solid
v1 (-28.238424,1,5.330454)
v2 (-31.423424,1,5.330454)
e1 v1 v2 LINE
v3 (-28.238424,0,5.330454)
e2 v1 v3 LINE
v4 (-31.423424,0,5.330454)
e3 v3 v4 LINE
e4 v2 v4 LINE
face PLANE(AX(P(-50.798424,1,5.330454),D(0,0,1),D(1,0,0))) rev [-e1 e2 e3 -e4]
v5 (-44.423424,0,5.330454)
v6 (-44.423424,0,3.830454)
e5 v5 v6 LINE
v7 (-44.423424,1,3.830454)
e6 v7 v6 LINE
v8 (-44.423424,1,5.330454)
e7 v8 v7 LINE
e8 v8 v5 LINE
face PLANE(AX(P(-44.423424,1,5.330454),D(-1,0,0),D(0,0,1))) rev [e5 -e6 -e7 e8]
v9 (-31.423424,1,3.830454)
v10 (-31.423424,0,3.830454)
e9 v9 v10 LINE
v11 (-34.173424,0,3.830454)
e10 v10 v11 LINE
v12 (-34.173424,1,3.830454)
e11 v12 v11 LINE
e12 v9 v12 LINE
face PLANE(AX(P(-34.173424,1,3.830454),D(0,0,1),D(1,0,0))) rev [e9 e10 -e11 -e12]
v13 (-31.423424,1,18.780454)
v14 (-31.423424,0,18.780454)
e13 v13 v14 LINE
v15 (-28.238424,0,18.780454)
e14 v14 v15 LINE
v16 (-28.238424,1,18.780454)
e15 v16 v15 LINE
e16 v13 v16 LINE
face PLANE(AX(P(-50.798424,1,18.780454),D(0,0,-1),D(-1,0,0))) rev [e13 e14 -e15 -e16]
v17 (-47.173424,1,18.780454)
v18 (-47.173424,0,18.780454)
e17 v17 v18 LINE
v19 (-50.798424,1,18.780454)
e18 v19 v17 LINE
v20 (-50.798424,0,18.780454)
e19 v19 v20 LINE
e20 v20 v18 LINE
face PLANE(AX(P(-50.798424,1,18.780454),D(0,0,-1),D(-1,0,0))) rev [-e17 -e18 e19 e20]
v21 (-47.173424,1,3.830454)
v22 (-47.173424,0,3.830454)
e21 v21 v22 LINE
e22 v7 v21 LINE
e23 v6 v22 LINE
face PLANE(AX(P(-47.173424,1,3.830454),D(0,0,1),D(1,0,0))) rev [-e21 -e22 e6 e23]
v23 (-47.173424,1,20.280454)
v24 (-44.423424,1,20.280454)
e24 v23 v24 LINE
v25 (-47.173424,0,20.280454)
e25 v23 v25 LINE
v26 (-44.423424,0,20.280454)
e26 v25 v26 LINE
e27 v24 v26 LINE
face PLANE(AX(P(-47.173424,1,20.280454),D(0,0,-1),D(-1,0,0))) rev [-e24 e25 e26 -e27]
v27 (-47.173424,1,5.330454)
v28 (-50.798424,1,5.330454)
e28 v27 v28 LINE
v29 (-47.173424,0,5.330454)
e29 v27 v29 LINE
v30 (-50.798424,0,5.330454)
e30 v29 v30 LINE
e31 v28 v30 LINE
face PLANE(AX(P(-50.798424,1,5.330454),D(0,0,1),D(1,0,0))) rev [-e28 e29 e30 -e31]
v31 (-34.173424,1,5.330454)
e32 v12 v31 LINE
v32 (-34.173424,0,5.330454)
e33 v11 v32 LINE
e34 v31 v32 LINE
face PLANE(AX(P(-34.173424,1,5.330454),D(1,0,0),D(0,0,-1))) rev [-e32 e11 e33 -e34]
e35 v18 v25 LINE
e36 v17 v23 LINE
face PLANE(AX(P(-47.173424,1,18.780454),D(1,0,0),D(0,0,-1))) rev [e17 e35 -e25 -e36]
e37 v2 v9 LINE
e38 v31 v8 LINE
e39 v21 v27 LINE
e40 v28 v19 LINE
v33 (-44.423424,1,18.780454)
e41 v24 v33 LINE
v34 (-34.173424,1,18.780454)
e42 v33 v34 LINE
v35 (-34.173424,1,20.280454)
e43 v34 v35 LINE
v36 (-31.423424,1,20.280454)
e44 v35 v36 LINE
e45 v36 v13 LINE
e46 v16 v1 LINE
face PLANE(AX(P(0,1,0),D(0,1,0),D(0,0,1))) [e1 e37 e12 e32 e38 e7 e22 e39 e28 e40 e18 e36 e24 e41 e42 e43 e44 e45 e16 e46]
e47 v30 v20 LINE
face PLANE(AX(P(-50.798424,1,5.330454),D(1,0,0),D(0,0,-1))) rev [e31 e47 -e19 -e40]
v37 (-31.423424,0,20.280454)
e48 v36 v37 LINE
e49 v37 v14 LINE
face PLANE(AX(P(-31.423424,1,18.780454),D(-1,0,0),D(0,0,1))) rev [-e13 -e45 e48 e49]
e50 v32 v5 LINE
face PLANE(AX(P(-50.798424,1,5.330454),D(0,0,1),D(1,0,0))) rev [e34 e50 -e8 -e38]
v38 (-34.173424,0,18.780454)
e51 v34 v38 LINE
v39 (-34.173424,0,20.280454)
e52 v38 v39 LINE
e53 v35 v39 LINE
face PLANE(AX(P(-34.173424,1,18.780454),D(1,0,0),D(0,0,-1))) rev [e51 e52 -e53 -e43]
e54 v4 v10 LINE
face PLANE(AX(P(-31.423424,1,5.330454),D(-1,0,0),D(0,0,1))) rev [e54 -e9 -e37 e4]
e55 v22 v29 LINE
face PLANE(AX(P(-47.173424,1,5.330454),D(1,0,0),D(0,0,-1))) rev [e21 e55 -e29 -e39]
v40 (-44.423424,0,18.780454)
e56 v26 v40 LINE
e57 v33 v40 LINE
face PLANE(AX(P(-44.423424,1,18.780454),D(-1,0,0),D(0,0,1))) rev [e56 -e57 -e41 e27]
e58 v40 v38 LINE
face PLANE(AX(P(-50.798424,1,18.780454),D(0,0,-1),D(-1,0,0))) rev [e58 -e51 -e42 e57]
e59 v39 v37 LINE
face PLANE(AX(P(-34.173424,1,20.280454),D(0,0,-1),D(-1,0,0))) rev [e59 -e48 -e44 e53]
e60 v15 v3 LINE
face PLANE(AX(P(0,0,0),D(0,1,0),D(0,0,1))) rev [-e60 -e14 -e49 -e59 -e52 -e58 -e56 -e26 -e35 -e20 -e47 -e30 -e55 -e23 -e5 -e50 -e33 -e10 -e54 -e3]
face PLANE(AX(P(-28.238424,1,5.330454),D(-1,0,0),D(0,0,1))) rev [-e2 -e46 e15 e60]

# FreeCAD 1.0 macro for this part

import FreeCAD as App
import Part
import Sketcher
from FreeCAD import Vector
Q = App.Units.Quantity

doc = App.newDocument("Part")
body = doc.addObject("PartDesign::Body", "Body")

sketch1 = body.newObject("Sketcher::SketchObject", "Sketch")
sketch1.AttachmentSupport = (doc.getObject("XZ_Plane"), [""])
sketch1.MapMode = "FlatFace"
sketch1.addGeometry(Part.LineSegment(Vector(-51, 5, 0), Vector(-51, 19, 0)), False)
sketch1.addGeometry(Part.LineSegment(Vector(-51, 19, 0), Vector(-28, 19, 0)), False)
sketch1.addGeometry(Part.LineSegment(Vector(-28, 19, 0), Vector(-28, 5, 0)), False)
sketch1.addGeometry(Part.LineSegment(Vector(-28, 5, 0), Vector(-51, 5, 0)), False)
sketch1.addConstraint(Sketcher.Constraint("Coincident", 0, 2, 1, 1))
sketch1.addConstraint(Sketcher.Constraint("Coincident", 1, 2, 2, 1))
sketch1.addConstraint(Sketcher.Constraint("Coincident", 2, 2, 3, 1))
sketch1.addConstraint(Sketcher.Constraint("Coincident", 3, 2, 0, 1))
sketch1.addConstraint(Sketcher.Constraint("Vertical", 0))
sketch1.addConstraint(Sketcher.Constraint("Horizontal", 1))
sketch1.addConstraint(Sketcher.Constraint("Vertical", 2))
sketch1.addConstraint(Sketcher.Constraint("Horizontal", 3))
sketch1.addConstraint(Sketcher.Constraint("DistanceX", 1, 1, 1, 2, Q("22.56 mm")))
sketch1.addConstraint(Sketcher.Constraint("DistanceY", 0, 1, 0, 2, Q("13.45 mm")))
sketch1.addConstraint(Sketcher.Constraint("DistanceX", 0, 2, -1, 1, Q("50.798424 mm")))
sketch1.addConstraint(Sketcher.Constraint("DistanceY", -1, 1, 0, 2, Q("18.780454 mm")))
pad1 = body.newObject("PartDesign::Pad", "Pad")
pad1.Profile = sketch1
pad1.Length = 1
pad1.Reversed = True

sketch2 = body.newObject("Sketcher::SketchObject", "Sketch001")
sketch2.AttachmentSupport = (doc.getObject("XZ_Plane"), [""])
sketch2.MapMode = "FlatFace"
sketch2.addGeometry(Part.LineSegment(Vector(-47.2, 3.8, 0), Vector(-47.2, 5.3, 0)), False)
sketch2.addGeometry(Part.LineSegment(Vector(-47.2, 5.3, 0), Vector(-44.4, 5.3, 0)), False)
sketch2.addGeometry(Part.LineSegment(Vector(-44.4, 5.3, 0), Vector(-44.4, 3.8, 0)), False)
sketch2.addGeometry(Part.LineSegment(Vector(-44.4, 3.8, 0), Vector(-47.2, 3.8, 0)), False)
sketch2.addGeometry(Part.LineSegment(Vector(-47.2, 18.8, 0), Vector(-47.2, 20.3, 0)), False)
sketch2.addGeometry(Part.LineSegment(Vector(-47.2, 20.3, 0), Vector(-44.4, 20.3, 0)), False)
sketch2.addGeometry(Part.LineSegment(Vector(-44.4, 20.3, 0), Vector(-44.4, 18.8, 0)), False)
sketch2.addGeometry(Part.LineSegment(Vector(-44.4, 18.8, 0), Vector(-47.2, 18.8, 0)), False)
sketch2.addGeometry(Part.LineSegment(Vector(-34.2, 3.8, 0), Vector(-34.2, 5.3, 0)), False)
sketch2.addGeometry(Part.LineSegment(Vector(-34.2, 5.3, 0), Vector(-31.4, 5.3, 0)), False)
sketch2.addGeometry(Part.LineSegment(Vector(-31.4, 5.3, 0), Vector(-31.4, 3.8, 0)), False)
sketch2.addGeometry(Part.LineSegment(Vector(-31.4, 3.8, 0), Vector(-34.2, 3.8, 0)), False)
sketch2.addGeometry(Part.LineSegment(Vector(-34.2, 18.8, 0), Vector(-34.2, 20.3, 0)), False)
sketch2.addGeometry(Part.LineSegment(Vector(-34.2, 20.3, 0), Vector(-31.4, 20.3, 0)), False)
sketch2.addGeometry(Part.LineSegment(Vector(-31.4, 20.3, 0), Vector(-31.4, 18.8, 0)), False)
sketch2.addGeometry(Part.LineSegment(Vector(-31.4, 18.8, 0), Vector(-34.2, 18.8, 0)), False)
sketch2.addConstraint(Sketcher.Constraint("Coincident", 0, 2, 1, 1))
sketch2.addConstraint(Sketcher.Constraint("Coincident", 1, 2, 2, 1))
sketch2.addConstraint(Sketcher.Constraint("Coincident", 2, 2, 3, 1))
sketch2.addConstraint(Sketcher.Constraint("Coincident", 3, 2, 0, 1))
sketch2.addConstraint(Sketcher.Constraint("Coincident", 4, 2, 5, 1))
sketch2.addConstraint(Sketcher.Constraint("Coincident", 5, 2, 6, 1))
sketch2.addConstraint(Sketcher.Constraint("Coincident", 6, 2, 7, 1))
sketch2.addConstraint(Sketcher.Constraint("Coincident", 7, 2, 4, 1))
sketch2.addConstraint(Sketcher.Constraint("Coincident", 8, 2, 9, 1))
sketch2.addConstraint(Sketcher.Constraint("Coincident", 9, 2, 10, 1))
sketch2.addConstraint(Sketcher.Constraint("Coincident", 10, 2, 11, 1))
sketch2.addConstraint(Sketcher.Constraint("Coincident", 11, 2, 8, 1))
sketch2.addConstraint(Sketcher.Constraint("Coincident", 12, 2, 13, 1))
sketch2.addConstraint(Sketcher.Constraint("Coincident", 13, 2, 14, 1))
sketch2.addConstraint(Sketcher.Constraint("Coincident", 14, 2, 15, 1))
sketch2.addConstraint(Sketcher.Constraint("Coincident", 15, 2, 12, 1))
sketch2.addConstraint(Sketcher.Constraint("Vertical", 0))
sketch2.addConstraint(Sketcher.Constraint("Horizontal", 1))
sketch2.addConstraint(Sketcher.Constraint("Vertical", 2))
sketch2.addConstraint(Sketcher.Constraint("Horizontal", 3))
sketch2.addConstraint(Sketcher.Constraint("Vertical", 4))
sketch2.addConstraint(Sketcher.Constraint("Horizontal", 5))
sketch2.addConstraint(Sketcher.Constraint("Vertical", 6))
sketch2.addConstraint(Sketcher.Constraint("Horizontal", 7))
sketch2.addConstraint(Sketcher.Constraint("Vertical", 8))
sketch2.addConstraint(Sketcher.Constraint("Horizontal", 9))
sketch2.addConstraint(Sketcher.Constraint("Vertical", 10))
sketch2.addConstraint(Sketcher.Constraint("Horizontal", 11))
sketch2.addConstraint(Sketcher.Constraint("Vertical", 12))
sketch2.addConstraint(Sketcher.Constraint("Horizontal", 13))
sketch2.addConstraint(Sketcher.Constraint("Vertical", 14))
sketch2.addConstraint(Sketcher.Constraint("Horizontal", 15))
sketch2.addConstraint(Sketcher.Constraint("Horizontal", 1, 2, 8, 2))
sketch2.addConstraint(Sketcher.Constraint("Horizontal", 3, 2, 10, 2))
sketch2.addConstraint(Sketcher.Constraint("Horizontal", 5, 2, 12, 2))
sketch2.addConstraint(Sketcher.Constraint("Horizontal", 7, 2, 14, 2))
sketch2.addConstraint(Sketcher.Constraint("Vertical", 3, 2, 4, 2))
sketch2.addConstraint(Sketcher.Constraint("Vertical", 2, 2, 5, 2))
sketch2.addConstraint(Sketcher.Constraint("Vertical", 11, 2, 12, 2))
sketch2.addConstraint(Sketcher.Constraint("Vertical", 10, 2, 13, 2))
sketch2.addConstraint(Sketcher.Constraint("Equal", 7, 9))
sketch2.addConstraint(Sketcher.Constraint("Equal", 2, 4))
sketch2.addConstraint(Sketcher.Constraint("DistanceY", 0, 1, 0, 2, Q("1.5 mm")))
sketch2.addConstraint(Sketcher.Constraint("DistanceX", 0, 2, 8, 2, Q("13 mm")))
sketch2.addConstraint(Sketcher.Constraint("DistanceX", 1, 1, 1, 2, Q("2.75 mm")))
sketch2.addConstraint(Sketcher.Constraint("DistanceY", 0, 2, 4, 2, Q("14.95 mm")))
sketch2.addConstraint(Sketcher.Constraint("DistanceX", 0, 2, -1, 1, Q("47.173424 mm")))
sketch2.addConstraint(Sketcher.Constraint("DistanceY", -1, 1, 0, 2, Q("5.330454 mm")))
pad2 = body.newObject("PartDesign::Pad", "Pad001")
pad2.Profile = sketch2
pad2.Length = 1
pad2.Reversed = True

doc.recompute()
